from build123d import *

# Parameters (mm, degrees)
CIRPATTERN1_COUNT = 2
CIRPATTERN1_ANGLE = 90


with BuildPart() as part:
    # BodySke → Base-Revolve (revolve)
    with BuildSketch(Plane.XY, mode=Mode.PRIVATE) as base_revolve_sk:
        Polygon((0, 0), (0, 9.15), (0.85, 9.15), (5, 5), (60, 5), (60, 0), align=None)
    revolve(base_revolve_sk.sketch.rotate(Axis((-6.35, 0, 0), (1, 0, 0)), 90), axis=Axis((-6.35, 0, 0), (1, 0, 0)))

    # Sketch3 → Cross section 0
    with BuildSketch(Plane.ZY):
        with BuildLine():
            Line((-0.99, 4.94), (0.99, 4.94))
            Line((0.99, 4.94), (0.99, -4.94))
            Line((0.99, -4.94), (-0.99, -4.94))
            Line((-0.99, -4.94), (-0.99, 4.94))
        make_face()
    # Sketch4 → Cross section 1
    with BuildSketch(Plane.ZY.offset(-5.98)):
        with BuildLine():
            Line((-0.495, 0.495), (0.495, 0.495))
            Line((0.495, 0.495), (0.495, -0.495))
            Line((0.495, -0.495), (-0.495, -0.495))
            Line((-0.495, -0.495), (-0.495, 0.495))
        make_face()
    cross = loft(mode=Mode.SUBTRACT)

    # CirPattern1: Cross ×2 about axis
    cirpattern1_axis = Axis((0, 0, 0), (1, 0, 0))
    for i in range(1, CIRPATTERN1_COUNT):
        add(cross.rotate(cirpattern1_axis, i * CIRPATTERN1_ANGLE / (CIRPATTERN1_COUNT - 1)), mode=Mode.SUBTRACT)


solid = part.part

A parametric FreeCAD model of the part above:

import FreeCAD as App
import Part
import Sketcher
from FreeCAD import Vector
Q = App.Units.Quantity

doc = App.newDocument("Part")
params = doc.addObject("Spreadsheet::Sheet", "Params")
for row, (alias, value) in enumerate([
    ("sketch1_width", "60 mm"),
    ("sketch1_width2", "55 mm"),
    ("sketch1_height", "5 mm"),
    ("sketch1_width3", "0.85 mm"),
    ("revolution_angle", "360 deg"),
    ("sketch2_width", "9.88 mm"),
    ("sketch2_height", "1.98 mm"),
    ("sketch3_width", "0.99 mm"),
], start=1):
    params.set(f"A{row}", alias)
    params.set(f"B{row}", "=" + value)
    params.setAlias(f"B{row}", alias)

body = doc.addObject("PartDesign::Body", "Body")

sketch1 = body.newObject("Sketcher::SketchObject", "Sketch")
sketch1.AttachmentSupport = (doc.getObject("XY_Plane"), [""])
sketch1.MapMode = "FlatFace"
sketch1.addGeometry([
    Part.LineSegment(Vector(0, 9.2, 0), Vector(0, 0, 0)),
    Part.LineSegment(Vector(0, 0, 0), Vector(60, 0, 0)),
    Part.LineSegment(Vector(60, 0, 0), Vector(60, 5, 0)),
    Part.LineSegment(Vector(60, 5, 0), Vector(5, 5, 0)),
    Part.LineSegment(Vector(5, 5, 0), Vector(0.8, 9.2, 0)),
    Part.LineSegment(Vector(0.8, 9.2, 0), Vector(0, 9.2, 0)),
], False)
sketch1.addConstraint([
    Sketcher.Constraint("Coincident", 0, 2, 1, 1),
    Sketcher.Constraint("Coincident", 1, 2, 2, 1),
    Sketcher.Constraint("Coincident", 2, 2, 3, 1),
    Sketcher.Constraint("Coincident", 3, 2, 4, 1),
    Sketcher.Constraint("Coincident", 4, 2, 5, 1),
    Sketcher.Constraint("Coincident", 5, 2, 0, 1),
    Sketcher.Constraint("Vertical", 0),
    Sketcher.Constraint("Horizontal", 1),
    Sketcher.Constraint("Vertical", 2),
    Sketcher.Constraint("Horizontal", 3),
    Sketcher.Constraint("Horizontal", 5),
    Sketcher.Constraint("Coincident", 0, 2, -1, 1),
    Sketcher.Constraint("DistanceX", 1, 1, 1, 2, 60.0),
    Sketcher.Constraint("DistanceX", 3, 2, 3, 1, 55.0),
    Sketcher.Constraint("DistanceY", 2, 1, 2, 2, 5.0),
    Sketcher.Constraint("Angle", 4, Q("135 deg")),
    Sketcher.Constraint("DistanceX", 5, 2, 5, 1, 0.85),
])
sketch1.setExpression("Constraints[12]", "Params.sketch1_width")
sketch1.setExpression("Constraints[13]", "Params.sketch1_width2")
sketch1.setExpression("Constraints[14]", "Params.sketch1_height")
sketch1.setExpression("Constraints[16]", "Params.sketch1_width3")
revolution = body.newObject("PartDesign::Revolution", "Revolution")
revolution.Profile = sketch1
revolution.ReferenceAxis = (sketch1, ["H_Axis"])
revolution.setExpression("Angle", "Params.revolution_angle")

sketch2 = body.newObject("Sketcher::SketchObject", "Sketch001")
sketch2.AttachmentSupport = (doc.getObject("YZ_Plane"), [""])
sketch2.MapMode = "FlatFace"
sketch2.addGeometry([
    Part.LineSegment(Vector(4.9, 1, 0), Vector(4.9, -1, 0)),
    Part.LineSegment(Vector(4.9, -1, 0), Vector(-4.9, -1, 0)),
    Part.LineSegment(Vector(-4.9, -1, 0), Vector(-4.9, 1, 0)),
    Part.LineSegment(Vector(-4.9, 1, 0), Vector(4.9, 1, 0)),
], False)
sketch2.addConstraint([
    Sketcher.Constraint("Coincident", 0, 2, 1, 1),
    Sketcher.Constraint("Coincident", 1, 2, 2, 1),
    Sketcher.Constraint("Coincident", 2, 2, 3, 1),
    Sketcher.Constraint("Coincident", 3, 2, 0, 1),
    Sketcher.Constraint("Vertical", 0),
    Sketcher.Constraint("Horizontal", 1),
    Sketcher.Constraint("Vertical", 2),
    Sketcher.Constraint("Horizontal", 3),
    Sketcher.Constraint("Symmetric", 0, 2, 2, 2, -1, 1),
    Sketcher.Constraint("DistanceX", 1, 2, 1, 1, 9.88),
    Sketcher.Constraint("DistanceY", 0, 2, 0, 1, 1.98),
])
sketch2.setExpression("Constraints[9]", "Params.sketch2_width")
sketch2.setExpression("Constraints[10]", "Params.sketch2_height")

sketch3 = body.newObject("Sketcher::SketchObject", "Sketch002")
sketch3.AttachmentSupport = (doc.getObject("YZ_Plane"), [""])
sketch3.MapMode = "FlatFace"
sketch3.AttachmentOffset = App.Placement(Vector(0, 0, 5.98), App.Rotation())
sketch3.addGeometry([
    Part.LineSegment(Vector(0.5, 0.5, 0), Vector(0.5, -0.5, 0)),
    Part.LineSegment(Vector(0.5, -0.5, 0), Vector(-0.5, -0.5, 0)),
    Part.LineSegment(Vector(-0.5, -0.5, 0), Vector(-0.5, 0.5, 0)),
    Part.LineSegment(Vector(-0.5, 0.5, 0), Vector(0.5, 0.5, 0)),
], False)
sketch3.addConstraint([
    Sketcher.Constraint("Coincident", 0, 2, 1, 1),
    Sketcher.Constraint("Coincident", 1, 2, 2, 1),
    Sketcher.Constraint("Coincident", 2, 2, 3, 1),
    Sketcher.Constraint("Coincident", 3, 2, 0, 1),
    Sketcher.Constraint("Vertical", 0),
    Sketcher.Constraint("Horizontal", 1),
    Sketcher.Constraint("Vertical", 2),
    Sketcher.Constraint("Horizontal", 3),
    Sketcher.Constraint("Symmetric", 0, 2, 2, 2, -1, 1),
    Sketcher.Constraint("Equal", 3, 0),
    Sketcher.Constraint("DistanceX", 1, 2, 1, 1, 0.99),
])
sketch3.setExpression("Constraints[10]", "Params.sketch3_width")

subtractiveloft = body.newObject("PartDesign::SubtractiveLoft", "SubtractiveLoft")
subtractiveloft.Profile = sketch2
subtractiveloft.Sections = [sketch3]
doc.recompute()

polarpattern = body.newObject("PartDesign::PolarPattern", "PolarPattern")
polarpattern.Originals = [subtractiveloft]
polarpattern.Axis = (doc.getObject("X_Axis"), [""])
polarpattern.Angle = 90
polarpattern.Occurrences = 2
body.Tip = polarpattern

doc.recompute()
